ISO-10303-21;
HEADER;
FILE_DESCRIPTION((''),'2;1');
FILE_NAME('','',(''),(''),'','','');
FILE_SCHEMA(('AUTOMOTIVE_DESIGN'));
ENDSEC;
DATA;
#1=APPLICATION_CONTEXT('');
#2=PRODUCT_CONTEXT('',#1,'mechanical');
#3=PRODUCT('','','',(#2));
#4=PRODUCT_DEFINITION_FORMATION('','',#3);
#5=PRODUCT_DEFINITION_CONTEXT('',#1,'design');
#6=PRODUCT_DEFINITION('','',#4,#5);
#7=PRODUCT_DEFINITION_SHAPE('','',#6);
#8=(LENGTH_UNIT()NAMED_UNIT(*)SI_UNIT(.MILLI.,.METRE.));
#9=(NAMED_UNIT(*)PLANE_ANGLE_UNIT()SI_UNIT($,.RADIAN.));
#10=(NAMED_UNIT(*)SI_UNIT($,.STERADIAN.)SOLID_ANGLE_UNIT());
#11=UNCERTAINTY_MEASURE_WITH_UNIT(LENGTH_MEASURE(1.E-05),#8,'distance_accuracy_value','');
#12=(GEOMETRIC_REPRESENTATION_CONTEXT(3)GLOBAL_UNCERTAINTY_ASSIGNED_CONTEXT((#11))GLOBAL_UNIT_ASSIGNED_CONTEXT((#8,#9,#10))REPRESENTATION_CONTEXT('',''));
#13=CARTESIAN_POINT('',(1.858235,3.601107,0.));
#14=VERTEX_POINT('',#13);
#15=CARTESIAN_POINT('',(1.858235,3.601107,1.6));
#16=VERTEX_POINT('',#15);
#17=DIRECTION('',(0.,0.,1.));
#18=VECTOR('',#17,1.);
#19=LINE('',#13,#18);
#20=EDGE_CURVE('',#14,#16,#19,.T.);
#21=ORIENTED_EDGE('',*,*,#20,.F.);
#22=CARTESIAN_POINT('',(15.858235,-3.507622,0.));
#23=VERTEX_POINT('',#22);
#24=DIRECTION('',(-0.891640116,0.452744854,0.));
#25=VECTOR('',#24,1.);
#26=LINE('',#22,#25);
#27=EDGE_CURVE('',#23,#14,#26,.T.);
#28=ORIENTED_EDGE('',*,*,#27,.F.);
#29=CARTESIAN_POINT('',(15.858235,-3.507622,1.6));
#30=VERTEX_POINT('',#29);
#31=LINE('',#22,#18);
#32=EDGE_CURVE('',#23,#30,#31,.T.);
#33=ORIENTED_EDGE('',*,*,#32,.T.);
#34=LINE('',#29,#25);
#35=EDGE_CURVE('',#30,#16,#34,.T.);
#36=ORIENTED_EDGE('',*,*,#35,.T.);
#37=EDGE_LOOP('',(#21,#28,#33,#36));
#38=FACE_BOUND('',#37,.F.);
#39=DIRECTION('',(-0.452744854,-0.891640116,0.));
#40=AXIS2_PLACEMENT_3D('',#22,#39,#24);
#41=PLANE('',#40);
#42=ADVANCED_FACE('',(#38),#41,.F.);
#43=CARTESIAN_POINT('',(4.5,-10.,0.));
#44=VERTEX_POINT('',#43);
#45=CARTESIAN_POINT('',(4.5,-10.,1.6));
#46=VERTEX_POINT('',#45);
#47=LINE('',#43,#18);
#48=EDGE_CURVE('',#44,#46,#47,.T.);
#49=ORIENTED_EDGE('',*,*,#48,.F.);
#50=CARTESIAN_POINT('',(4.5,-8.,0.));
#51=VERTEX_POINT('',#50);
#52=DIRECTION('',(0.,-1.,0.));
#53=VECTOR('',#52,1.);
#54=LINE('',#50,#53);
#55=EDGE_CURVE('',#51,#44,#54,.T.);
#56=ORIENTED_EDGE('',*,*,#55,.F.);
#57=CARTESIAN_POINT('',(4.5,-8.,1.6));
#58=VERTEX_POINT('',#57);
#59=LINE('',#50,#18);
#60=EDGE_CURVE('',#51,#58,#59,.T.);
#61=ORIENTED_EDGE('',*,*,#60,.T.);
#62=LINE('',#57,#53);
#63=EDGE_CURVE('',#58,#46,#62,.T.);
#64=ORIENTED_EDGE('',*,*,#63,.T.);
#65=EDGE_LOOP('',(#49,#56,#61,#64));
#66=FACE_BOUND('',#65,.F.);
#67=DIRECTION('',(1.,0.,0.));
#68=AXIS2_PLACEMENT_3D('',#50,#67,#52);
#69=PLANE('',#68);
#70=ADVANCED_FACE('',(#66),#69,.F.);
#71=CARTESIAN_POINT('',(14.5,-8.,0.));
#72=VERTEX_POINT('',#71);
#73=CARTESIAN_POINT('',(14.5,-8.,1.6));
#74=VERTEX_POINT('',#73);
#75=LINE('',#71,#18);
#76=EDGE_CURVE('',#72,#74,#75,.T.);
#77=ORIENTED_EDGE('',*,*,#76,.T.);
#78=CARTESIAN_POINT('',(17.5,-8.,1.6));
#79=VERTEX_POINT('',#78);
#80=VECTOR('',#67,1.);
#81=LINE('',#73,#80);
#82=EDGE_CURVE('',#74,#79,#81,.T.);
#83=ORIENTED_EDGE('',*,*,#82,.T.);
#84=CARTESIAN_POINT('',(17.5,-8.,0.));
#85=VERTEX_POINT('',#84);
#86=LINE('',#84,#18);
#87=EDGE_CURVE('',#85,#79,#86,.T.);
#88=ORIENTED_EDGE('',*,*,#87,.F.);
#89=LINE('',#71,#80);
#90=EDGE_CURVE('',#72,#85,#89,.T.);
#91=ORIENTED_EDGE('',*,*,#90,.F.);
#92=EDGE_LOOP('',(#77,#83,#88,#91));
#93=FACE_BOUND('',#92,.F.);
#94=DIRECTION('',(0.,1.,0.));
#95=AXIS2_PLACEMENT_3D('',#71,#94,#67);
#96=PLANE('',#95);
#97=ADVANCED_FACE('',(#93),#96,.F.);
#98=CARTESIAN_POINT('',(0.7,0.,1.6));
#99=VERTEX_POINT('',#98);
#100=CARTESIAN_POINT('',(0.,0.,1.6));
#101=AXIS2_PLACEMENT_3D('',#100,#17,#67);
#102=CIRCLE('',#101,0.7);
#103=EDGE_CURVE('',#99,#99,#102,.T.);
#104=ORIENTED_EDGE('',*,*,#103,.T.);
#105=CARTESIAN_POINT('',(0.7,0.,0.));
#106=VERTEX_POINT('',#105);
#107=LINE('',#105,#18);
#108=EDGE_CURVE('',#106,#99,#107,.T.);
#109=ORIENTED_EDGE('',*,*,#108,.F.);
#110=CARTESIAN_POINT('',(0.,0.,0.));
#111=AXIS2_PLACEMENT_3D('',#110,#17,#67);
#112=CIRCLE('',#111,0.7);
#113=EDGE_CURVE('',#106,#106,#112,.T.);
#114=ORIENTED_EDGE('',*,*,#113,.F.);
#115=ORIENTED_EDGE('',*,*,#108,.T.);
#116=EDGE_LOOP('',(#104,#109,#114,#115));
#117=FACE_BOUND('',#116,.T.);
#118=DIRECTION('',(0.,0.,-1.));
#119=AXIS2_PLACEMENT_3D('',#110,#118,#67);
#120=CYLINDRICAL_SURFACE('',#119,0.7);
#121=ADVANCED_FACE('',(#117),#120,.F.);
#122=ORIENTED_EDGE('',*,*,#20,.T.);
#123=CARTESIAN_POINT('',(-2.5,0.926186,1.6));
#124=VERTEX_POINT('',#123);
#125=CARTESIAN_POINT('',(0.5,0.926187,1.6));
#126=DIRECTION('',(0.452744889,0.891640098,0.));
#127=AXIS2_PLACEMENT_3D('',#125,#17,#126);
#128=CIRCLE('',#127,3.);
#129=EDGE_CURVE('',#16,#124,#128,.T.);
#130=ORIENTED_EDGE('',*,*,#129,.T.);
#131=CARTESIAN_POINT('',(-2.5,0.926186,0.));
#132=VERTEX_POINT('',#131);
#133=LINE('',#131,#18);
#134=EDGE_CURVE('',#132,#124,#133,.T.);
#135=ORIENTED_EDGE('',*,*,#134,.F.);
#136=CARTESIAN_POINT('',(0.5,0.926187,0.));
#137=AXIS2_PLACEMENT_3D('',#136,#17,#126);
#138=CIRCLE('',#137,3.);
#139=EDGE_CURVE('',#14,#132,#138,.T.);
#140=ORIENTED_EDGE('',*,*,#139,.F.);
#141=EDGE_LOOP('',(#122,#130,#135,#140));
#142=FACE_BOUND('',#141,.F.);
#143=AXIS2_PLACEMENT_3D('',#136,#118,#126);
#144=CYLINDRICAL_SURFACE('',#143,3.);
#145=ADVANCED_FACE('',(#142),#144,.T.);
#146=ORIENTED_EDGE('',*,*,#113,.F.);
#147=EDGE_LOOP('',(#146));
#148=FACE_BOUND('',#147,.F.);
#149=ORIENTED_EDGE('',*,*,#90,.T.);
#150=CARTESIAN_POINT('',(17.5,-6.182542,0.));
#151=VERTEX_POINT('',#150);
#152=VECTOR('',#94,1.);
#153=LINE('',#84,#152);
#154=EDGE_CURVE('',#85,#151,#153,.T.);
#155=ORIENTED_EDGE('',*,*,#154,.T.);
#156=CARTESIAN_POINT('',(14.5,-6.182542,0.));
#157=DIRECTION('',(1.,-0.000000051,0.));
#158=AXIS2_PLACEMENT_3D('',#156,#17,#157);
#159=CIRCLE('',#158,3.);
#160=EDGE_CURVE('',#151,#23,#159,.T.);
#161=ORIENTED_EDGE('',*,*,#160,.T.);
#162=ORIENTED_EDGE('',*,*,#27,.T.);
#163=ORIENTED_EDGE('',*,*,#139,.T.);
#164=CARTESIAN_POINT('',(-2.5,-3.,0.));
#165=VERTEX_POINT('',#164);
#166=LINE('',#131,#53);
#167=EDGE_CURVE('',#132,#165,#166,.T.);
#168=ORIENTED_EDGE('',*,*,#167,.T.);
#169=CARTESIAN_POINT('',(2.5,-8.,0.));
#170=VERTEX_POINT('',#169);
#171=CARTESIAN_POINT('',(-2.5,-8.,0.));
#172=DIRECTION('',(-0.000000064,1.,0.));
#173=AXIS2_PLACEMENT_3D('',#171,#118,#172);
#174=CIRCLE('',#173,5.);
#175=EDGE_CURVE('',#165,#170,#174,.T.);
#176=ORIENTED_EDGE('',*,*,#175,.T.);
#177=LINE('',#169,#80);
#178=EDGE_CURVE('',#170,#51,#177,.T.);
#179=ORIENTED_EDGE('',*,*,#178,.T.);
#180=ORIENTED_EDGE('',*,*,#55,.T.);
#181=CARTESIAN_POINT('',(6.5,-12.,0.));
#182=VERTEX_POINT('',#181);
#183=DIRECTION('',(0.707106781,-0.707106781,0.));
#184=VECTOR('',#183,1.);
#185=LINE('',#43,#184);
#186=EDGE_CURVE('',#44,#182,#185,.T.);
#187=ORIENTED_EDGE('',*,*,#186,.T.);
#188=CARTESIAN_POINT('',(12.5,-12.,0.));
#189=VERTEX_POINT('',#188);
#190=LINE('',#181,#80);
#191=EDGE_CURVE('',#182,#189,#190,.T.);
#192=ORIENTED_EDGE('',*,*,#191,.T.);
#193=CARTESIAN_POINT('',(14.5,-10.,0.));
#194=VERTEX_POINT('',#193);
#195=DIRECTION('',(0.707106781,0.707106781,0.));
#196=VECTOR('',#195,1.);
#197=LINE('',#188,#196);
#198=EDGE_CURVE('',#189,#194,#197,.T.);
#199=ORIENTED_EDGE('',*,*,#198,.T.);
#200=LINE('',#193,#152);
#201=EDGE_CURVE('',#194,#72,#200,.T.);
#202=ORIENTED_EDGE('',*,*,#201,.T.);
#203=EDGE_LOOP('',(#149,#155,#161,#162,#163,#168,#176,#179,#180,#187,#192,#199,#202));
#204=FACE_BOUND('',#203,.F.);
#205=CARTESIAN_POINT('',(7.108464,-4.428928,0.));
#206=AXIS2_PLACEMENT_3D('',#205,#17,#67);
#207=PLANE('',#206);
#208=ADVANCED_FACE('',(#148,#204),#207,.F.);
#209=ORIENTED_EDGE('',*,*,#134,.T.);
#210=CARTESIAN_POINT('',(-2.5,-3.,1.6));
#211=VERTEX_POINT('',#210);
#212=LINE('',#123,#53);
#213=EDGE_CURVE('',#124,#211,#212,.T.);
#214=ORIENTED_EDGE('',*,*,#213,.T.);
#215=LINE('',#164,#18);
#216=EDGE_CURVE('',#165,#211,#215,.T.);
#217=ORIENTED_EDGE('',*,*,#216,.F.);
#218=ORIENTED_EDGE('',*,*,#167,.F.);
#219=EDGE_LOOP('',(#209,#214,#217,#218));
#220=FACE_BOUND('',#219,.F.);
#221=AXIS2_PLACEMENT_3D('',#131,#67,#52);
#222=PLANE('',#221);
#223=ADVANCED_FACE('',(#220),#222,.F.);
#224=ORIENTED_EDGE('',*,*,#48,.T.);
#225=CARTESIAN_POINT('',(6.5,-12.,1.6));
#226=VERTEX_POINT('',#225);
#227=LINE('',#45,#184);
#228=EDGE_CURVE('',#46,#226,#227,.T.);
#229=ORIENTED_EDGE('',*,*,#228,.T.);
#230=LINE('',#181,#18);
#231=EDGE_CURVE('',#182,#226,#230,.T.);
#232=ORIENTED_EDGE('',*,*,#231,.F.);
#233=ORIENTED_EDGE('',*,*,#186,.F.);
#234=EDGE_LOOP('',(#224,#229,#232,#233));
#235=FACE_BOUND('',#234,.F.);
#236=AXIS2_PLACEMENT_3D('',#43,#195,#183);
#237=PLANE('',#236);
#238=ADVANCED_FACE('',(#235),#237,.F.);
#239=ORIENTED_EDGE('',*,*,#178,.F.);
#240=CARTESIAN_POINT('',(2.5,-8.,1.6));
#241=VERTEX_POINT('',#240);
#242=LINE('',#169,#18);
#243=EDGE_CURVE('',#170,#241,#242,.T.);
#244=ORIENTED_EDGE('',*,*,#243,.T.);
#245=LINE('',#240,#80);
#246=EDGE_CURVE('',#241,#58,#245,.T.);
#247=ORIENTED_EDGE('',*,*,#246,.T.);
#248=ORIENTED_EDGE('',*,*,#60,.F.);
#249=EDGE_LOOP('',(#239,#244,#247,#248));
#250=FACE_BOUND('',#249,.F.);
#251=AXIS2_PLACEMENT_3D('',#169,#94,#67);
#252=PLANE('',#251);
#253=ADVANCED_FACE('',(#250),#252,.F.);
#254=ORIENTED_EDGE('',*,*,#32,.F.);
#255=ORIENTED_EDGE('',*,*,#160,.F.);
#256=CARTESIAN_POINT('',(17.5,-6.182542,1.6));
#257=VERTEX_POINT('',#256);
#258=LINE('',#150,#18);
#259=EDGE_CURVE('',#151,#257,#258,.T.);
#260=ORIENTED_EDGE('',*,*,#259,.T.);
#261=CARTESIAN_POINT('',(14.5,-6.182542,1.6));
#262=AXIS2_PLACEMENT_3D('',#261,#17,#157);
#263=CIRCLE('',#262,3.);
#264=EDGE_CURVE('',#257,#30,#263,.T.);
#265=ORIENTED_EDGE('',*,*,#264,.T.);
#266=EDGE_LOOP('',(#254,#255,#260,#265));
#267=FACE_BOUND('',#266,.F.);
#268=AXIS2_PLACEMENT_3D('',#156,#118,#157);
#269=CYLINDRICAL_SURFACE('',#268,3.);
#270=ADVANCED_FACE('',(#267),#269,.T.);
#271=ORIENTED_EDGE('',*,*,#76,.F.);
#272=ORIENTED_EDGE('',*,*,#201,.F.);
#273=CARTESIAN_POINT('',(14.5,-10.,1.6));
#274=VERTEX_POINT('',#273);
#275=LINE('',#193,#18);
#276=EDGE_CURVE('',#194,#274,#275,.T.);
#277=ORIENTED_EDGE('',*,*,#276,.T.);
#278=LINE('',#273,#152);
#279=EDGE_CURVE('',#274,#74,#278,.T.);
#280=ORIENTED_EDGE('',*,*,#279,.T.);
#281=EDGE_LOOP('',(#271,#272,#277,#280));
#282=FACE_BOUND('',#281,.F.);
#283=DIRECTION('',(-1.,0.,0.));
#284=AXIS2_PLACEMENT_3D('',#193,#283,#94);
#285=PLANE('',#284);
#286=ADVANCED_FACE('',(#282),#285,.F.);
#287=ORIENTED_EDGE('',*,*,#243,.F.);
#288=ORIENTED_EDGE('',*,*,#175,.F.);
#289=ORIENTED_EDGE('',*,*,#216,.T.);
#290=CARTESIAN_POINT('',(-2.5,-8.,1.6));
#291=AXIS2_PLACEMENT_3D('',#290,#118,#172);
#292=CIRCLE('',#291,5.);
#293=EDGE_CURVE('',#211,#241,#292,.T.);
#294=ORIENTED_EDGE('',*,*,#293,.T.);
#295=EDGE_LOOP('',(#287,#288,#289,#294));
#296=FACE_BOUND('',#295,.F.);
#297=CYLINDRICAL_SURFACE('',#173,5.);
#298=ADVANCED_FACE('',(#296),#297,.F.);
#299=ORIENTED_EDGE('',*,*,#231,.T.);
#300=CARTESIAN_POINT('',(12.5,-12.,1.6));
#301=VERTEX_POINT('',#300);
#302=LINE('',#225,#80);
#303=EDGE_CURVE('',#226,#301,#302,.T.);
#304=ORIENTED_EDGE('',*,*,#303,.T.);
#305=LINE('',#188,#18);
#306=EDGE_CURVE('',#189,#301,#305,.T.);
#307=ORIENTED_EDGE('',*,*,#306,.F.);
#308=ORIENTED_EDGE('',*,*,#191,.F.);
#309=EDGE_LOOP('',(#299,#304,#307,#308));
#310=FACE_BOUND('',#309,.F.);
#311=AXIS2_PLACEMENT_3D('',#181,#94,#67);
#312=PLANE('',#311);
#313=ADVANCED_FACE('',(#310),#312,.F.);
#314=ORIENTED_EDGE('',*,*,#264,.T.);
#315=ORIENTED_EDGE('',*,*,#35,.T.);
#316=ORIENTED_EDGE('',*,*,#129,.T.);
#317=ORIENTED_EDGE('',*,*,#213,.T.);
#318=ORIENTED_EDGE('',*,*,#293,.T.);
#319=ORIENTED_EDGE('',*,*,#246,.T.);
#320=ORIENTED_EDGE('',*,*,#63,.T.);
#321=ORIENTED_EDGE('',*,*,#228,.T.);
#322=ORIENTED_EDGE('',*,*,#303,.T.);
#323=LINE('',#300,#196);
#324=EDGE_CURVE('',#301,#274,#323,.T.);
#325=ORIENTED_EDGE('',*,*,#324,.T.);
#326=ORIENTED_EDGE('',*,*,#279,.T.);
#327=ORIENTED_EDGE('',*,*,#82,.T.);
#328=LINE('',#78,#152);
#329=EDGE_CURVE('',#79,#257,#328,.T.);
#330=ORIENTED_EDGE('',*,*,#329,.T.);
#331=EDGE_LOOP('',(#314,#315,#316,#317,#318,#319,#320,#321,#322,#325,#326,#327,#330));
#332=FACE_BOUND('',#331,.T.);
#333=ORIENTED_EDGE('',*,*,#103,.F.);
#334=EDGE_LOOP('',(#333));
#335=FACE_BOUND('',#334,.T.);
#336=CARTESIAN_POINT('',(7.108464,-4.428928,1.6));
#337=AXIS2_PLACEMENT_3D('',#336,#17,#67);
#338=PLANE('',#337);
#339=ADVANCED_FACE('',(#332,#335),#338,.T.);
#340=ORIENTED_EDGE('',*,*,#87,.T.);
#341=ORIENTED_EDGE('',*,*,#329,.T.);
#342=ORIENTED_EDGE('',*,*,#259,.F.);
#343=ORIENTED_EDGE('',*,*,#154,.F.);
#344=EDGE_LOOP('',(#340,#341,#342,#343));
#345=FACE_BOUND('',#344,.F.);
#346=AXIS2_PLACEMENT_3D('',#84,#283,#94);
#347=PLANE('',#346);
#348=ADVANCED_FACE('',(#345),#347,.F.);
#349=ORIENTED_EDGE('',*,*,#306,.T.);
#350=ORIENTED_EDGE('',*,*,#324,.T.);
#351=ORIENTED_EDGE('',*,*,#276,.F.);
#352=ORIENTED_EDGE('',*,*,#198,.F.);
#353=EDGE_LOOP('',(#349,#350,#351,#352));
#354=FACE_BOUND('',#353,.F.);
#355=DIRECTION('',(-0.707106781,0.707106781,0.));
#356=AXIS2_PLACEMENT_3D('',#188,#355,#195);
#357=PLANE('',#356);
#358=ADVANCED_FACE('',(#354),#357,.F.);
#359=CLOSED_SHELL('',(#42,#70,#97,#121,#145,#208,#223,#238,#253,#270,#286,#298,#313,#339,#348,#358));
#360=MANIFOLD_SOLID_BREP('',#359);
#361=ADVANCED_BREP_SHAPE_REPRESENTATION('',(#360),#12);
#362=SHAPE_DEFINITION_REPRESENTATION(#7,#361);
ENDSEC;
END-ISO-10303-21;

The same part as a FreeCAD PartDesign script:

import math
import FreeCAD as App
import Part
import Sketcher

V = App.Vector

doc = App.newDocument("Part")
params = doc.addObject("Spreadsheet::Sheet", "Params")
for row, (alias, value) in enumerate([
    ("sketch1_radius", "5 mm"),
    ("sketch1_radius2", "3 mm"),
    ("sketch1_diameter", "1.4 mm"),
    ("sketch1_width", "2 mm"),
    ("sketch1_width2", "6 mm"),
    ("pad1_length", "1.6 mm"),
], start=1):
    params.set(f"A{row}", alias)
    params.set(f"B{row}", "=" + value)
    params.setAlias(f"B{row}", alias)

body = doc.addObject("PartDesign::Body", "Body")

# Sketch on XY plane
sketch1 = doc.addObject("Sketcher::SketchObject", "Sketch")
body.addObject(sketch1)
sketch1.AttachmentSupport = (doc.XY_Plane, [""])
sketch1.MapMode = "FlatFace"
sketch1.addGeometry([
    Part.LineSegment(V(-2.5, 0.9, 0), V(-2.5, -3, 0)),  # 0
    Part.ArcOfCircle(Part.Circle(V(-2.5, -8, 0), V(0, 0, 1), 5), math.radians(0), math.radians(90)),  # 1
    Part.LineSegment(V(2.5, -8, 0), V(4.5, -8, 0)),  # 2
    Part.LineSegment(V(4.5, -8, 0), V(4.5, -10, 0)),  # 3
    Part.LineSegment(V(4.5, -10, 0), V(6.5, -12, 0)),  # 4
    Part.LineSegment(V(6.5, -12, 0), V(12.5, -12, 0)),  # 5
    Part.LineSegment(V(12.5, -12, 0), V(14.5, -10, 0)),  # 6
    Part.LineSegment(V(14.5, -10, 0), V(14.5, -8, 0)),  # 7
    Part.LineSegment(V(14.5, -8, 0), V(17.5, -8, 0)),  # 8
    Part.LineSegment(V(17.5, -8, 0), V(17.5, -6.2, 0)),  # 9
    Part.ArcOfCircle(Part.Circle(V(14.5, -6.2, 0), V(0, 0, 1), 3), math.radians(0), math.radians(63)),  # 10
    Part.LineSegment(V(15.9, -3.5, 0), V(1.9, 3.6, 0)),  # 11
    Part.ArcOfCircle(Part.Circle(V(0.5, 0.9, 0), V(0, 0, 1), 3), math.radians(63), math.radians(180)),  # 12
    Part.Circle(V(0, 0, 0), V(0, 0, 1), 0.7),  # 13
], False)
sketch1.addConstraint([
    Sketcher.Constraint("Coincident", 0, 2, 1, 2),
    Sketcher.Constraint("Coincident", 1, 1, 2, 1),
    Sketcher.Constraint("Coincident", 2, 2, 3, 1),
    Sketcher.Constraint("Coincident", 3, 2, 4, 1),
    Sketcher.Constraint("Coincident", 4, 2, 5, 1),
    Sketcher.Constraint("Coincident", 5, 2, 6, 1),
    Sketcher.Constraint("Coincident", 6, 2, 7, 1),
    Sketcher.Constraint("Coincident", 7, 2, 8, 1),
    Sketcher.Constraint("Coincident", 8, 2, 9, 1),
    Sketcher.Constraint("Tangent", 9, 2, 10, 1),
    Sketcher.Constraint("Tangent", 10, 2, 11, 1),
    Sketcher.Constraint("Tangent", 11, 2, 12, 1),
    Sketcher.Constraint("Tangent", 12, 2, 0, 1),
    Sketcher.Constraint("Vertical", 0),
    Sketcher.Constraint("Horizontal", 2),
    Sketcher.Constraint("Vertical", 3),
    Sketcher.Constraint("Horizontal", 5),
    Sketcher.Constraint("Vertical", 7),
    Sketcher.Constraint("Horizontal", 8),
    Sketcher.Constraint("Vertical", 9),
    Sketcher.Constraint("Coincident", 13, 3, -1, 1),
    Sketcher.Constraint("Equal", 10, 12),
    Sketcher.Constraint("Perpendicular", 4, 6),
    Sketcher.Constraint("Horizontal", 3, 2, 6, 2),
    Sketcher.Constraint("Horizontal", 2, 2, 7, 2),
    Sketcher.Constraint("Vertical", 1, 3, 0, 2),
    Sketcher.Constraint("Vertical", 10, 3, 6, 2),
    Sketcher.Constraint("Equal", 2, 3),
    Sketcher.Constraint("Equal", 4, 6),
    Sketcher.Constraint("Radius", 1, 5.0),
    Sketcher.Constraint("Radius", 10, 3.0),
    Sketcher.Constraint("Diameter", 13, 1.4),
    Sketcher.Constraint("DistanceX", 2, 1, 2, 2, 2.0),
    Sketcher.Constraint("DistanceX", 5, 1, 5, 2, 6.0),
    Sketcher.Constraint("DistanceY", 1, 3, -1, 1, 8.0),
    Sketcher.Constraint("DistanceY", 1, 1, -1, 1, 8.0),
    Sketcher.Constraint("DistanceY", 4, 2, -1, 1, 12.0),
    Sketcher.Constraint("DistanceX", 1, 3, -1, 1, 2.5),
    Sketcher.Constraint("DistanceY", 9, 1, 9, 2, 1.817458),
    Sketcher.Constraint("DistanceY", 0, 2, 0, 1, 3.926186),
])
sketch1.setExpression("Constraints[29]", "Params.sketch1_radius")
sketch1.setExpression("Constraints[30]", "Params.sketch1_radius2")
sketch1.setExpression("Constraints[31]", "Params.sketch1_diameter")
sketch1.setExpression("Constraints[32]", "Params.sketch1_width")
sketch1.setExpression("Constraints[33]", "Params.sketch1_width2")
pad1 = doc.addObject("PartDesign::Pad", "Pad")
body.addObject(pad1)
pad1.Profile = sketch1
pad1.setExpression("Length", "Params.pad1_length")

doc.recompute()
